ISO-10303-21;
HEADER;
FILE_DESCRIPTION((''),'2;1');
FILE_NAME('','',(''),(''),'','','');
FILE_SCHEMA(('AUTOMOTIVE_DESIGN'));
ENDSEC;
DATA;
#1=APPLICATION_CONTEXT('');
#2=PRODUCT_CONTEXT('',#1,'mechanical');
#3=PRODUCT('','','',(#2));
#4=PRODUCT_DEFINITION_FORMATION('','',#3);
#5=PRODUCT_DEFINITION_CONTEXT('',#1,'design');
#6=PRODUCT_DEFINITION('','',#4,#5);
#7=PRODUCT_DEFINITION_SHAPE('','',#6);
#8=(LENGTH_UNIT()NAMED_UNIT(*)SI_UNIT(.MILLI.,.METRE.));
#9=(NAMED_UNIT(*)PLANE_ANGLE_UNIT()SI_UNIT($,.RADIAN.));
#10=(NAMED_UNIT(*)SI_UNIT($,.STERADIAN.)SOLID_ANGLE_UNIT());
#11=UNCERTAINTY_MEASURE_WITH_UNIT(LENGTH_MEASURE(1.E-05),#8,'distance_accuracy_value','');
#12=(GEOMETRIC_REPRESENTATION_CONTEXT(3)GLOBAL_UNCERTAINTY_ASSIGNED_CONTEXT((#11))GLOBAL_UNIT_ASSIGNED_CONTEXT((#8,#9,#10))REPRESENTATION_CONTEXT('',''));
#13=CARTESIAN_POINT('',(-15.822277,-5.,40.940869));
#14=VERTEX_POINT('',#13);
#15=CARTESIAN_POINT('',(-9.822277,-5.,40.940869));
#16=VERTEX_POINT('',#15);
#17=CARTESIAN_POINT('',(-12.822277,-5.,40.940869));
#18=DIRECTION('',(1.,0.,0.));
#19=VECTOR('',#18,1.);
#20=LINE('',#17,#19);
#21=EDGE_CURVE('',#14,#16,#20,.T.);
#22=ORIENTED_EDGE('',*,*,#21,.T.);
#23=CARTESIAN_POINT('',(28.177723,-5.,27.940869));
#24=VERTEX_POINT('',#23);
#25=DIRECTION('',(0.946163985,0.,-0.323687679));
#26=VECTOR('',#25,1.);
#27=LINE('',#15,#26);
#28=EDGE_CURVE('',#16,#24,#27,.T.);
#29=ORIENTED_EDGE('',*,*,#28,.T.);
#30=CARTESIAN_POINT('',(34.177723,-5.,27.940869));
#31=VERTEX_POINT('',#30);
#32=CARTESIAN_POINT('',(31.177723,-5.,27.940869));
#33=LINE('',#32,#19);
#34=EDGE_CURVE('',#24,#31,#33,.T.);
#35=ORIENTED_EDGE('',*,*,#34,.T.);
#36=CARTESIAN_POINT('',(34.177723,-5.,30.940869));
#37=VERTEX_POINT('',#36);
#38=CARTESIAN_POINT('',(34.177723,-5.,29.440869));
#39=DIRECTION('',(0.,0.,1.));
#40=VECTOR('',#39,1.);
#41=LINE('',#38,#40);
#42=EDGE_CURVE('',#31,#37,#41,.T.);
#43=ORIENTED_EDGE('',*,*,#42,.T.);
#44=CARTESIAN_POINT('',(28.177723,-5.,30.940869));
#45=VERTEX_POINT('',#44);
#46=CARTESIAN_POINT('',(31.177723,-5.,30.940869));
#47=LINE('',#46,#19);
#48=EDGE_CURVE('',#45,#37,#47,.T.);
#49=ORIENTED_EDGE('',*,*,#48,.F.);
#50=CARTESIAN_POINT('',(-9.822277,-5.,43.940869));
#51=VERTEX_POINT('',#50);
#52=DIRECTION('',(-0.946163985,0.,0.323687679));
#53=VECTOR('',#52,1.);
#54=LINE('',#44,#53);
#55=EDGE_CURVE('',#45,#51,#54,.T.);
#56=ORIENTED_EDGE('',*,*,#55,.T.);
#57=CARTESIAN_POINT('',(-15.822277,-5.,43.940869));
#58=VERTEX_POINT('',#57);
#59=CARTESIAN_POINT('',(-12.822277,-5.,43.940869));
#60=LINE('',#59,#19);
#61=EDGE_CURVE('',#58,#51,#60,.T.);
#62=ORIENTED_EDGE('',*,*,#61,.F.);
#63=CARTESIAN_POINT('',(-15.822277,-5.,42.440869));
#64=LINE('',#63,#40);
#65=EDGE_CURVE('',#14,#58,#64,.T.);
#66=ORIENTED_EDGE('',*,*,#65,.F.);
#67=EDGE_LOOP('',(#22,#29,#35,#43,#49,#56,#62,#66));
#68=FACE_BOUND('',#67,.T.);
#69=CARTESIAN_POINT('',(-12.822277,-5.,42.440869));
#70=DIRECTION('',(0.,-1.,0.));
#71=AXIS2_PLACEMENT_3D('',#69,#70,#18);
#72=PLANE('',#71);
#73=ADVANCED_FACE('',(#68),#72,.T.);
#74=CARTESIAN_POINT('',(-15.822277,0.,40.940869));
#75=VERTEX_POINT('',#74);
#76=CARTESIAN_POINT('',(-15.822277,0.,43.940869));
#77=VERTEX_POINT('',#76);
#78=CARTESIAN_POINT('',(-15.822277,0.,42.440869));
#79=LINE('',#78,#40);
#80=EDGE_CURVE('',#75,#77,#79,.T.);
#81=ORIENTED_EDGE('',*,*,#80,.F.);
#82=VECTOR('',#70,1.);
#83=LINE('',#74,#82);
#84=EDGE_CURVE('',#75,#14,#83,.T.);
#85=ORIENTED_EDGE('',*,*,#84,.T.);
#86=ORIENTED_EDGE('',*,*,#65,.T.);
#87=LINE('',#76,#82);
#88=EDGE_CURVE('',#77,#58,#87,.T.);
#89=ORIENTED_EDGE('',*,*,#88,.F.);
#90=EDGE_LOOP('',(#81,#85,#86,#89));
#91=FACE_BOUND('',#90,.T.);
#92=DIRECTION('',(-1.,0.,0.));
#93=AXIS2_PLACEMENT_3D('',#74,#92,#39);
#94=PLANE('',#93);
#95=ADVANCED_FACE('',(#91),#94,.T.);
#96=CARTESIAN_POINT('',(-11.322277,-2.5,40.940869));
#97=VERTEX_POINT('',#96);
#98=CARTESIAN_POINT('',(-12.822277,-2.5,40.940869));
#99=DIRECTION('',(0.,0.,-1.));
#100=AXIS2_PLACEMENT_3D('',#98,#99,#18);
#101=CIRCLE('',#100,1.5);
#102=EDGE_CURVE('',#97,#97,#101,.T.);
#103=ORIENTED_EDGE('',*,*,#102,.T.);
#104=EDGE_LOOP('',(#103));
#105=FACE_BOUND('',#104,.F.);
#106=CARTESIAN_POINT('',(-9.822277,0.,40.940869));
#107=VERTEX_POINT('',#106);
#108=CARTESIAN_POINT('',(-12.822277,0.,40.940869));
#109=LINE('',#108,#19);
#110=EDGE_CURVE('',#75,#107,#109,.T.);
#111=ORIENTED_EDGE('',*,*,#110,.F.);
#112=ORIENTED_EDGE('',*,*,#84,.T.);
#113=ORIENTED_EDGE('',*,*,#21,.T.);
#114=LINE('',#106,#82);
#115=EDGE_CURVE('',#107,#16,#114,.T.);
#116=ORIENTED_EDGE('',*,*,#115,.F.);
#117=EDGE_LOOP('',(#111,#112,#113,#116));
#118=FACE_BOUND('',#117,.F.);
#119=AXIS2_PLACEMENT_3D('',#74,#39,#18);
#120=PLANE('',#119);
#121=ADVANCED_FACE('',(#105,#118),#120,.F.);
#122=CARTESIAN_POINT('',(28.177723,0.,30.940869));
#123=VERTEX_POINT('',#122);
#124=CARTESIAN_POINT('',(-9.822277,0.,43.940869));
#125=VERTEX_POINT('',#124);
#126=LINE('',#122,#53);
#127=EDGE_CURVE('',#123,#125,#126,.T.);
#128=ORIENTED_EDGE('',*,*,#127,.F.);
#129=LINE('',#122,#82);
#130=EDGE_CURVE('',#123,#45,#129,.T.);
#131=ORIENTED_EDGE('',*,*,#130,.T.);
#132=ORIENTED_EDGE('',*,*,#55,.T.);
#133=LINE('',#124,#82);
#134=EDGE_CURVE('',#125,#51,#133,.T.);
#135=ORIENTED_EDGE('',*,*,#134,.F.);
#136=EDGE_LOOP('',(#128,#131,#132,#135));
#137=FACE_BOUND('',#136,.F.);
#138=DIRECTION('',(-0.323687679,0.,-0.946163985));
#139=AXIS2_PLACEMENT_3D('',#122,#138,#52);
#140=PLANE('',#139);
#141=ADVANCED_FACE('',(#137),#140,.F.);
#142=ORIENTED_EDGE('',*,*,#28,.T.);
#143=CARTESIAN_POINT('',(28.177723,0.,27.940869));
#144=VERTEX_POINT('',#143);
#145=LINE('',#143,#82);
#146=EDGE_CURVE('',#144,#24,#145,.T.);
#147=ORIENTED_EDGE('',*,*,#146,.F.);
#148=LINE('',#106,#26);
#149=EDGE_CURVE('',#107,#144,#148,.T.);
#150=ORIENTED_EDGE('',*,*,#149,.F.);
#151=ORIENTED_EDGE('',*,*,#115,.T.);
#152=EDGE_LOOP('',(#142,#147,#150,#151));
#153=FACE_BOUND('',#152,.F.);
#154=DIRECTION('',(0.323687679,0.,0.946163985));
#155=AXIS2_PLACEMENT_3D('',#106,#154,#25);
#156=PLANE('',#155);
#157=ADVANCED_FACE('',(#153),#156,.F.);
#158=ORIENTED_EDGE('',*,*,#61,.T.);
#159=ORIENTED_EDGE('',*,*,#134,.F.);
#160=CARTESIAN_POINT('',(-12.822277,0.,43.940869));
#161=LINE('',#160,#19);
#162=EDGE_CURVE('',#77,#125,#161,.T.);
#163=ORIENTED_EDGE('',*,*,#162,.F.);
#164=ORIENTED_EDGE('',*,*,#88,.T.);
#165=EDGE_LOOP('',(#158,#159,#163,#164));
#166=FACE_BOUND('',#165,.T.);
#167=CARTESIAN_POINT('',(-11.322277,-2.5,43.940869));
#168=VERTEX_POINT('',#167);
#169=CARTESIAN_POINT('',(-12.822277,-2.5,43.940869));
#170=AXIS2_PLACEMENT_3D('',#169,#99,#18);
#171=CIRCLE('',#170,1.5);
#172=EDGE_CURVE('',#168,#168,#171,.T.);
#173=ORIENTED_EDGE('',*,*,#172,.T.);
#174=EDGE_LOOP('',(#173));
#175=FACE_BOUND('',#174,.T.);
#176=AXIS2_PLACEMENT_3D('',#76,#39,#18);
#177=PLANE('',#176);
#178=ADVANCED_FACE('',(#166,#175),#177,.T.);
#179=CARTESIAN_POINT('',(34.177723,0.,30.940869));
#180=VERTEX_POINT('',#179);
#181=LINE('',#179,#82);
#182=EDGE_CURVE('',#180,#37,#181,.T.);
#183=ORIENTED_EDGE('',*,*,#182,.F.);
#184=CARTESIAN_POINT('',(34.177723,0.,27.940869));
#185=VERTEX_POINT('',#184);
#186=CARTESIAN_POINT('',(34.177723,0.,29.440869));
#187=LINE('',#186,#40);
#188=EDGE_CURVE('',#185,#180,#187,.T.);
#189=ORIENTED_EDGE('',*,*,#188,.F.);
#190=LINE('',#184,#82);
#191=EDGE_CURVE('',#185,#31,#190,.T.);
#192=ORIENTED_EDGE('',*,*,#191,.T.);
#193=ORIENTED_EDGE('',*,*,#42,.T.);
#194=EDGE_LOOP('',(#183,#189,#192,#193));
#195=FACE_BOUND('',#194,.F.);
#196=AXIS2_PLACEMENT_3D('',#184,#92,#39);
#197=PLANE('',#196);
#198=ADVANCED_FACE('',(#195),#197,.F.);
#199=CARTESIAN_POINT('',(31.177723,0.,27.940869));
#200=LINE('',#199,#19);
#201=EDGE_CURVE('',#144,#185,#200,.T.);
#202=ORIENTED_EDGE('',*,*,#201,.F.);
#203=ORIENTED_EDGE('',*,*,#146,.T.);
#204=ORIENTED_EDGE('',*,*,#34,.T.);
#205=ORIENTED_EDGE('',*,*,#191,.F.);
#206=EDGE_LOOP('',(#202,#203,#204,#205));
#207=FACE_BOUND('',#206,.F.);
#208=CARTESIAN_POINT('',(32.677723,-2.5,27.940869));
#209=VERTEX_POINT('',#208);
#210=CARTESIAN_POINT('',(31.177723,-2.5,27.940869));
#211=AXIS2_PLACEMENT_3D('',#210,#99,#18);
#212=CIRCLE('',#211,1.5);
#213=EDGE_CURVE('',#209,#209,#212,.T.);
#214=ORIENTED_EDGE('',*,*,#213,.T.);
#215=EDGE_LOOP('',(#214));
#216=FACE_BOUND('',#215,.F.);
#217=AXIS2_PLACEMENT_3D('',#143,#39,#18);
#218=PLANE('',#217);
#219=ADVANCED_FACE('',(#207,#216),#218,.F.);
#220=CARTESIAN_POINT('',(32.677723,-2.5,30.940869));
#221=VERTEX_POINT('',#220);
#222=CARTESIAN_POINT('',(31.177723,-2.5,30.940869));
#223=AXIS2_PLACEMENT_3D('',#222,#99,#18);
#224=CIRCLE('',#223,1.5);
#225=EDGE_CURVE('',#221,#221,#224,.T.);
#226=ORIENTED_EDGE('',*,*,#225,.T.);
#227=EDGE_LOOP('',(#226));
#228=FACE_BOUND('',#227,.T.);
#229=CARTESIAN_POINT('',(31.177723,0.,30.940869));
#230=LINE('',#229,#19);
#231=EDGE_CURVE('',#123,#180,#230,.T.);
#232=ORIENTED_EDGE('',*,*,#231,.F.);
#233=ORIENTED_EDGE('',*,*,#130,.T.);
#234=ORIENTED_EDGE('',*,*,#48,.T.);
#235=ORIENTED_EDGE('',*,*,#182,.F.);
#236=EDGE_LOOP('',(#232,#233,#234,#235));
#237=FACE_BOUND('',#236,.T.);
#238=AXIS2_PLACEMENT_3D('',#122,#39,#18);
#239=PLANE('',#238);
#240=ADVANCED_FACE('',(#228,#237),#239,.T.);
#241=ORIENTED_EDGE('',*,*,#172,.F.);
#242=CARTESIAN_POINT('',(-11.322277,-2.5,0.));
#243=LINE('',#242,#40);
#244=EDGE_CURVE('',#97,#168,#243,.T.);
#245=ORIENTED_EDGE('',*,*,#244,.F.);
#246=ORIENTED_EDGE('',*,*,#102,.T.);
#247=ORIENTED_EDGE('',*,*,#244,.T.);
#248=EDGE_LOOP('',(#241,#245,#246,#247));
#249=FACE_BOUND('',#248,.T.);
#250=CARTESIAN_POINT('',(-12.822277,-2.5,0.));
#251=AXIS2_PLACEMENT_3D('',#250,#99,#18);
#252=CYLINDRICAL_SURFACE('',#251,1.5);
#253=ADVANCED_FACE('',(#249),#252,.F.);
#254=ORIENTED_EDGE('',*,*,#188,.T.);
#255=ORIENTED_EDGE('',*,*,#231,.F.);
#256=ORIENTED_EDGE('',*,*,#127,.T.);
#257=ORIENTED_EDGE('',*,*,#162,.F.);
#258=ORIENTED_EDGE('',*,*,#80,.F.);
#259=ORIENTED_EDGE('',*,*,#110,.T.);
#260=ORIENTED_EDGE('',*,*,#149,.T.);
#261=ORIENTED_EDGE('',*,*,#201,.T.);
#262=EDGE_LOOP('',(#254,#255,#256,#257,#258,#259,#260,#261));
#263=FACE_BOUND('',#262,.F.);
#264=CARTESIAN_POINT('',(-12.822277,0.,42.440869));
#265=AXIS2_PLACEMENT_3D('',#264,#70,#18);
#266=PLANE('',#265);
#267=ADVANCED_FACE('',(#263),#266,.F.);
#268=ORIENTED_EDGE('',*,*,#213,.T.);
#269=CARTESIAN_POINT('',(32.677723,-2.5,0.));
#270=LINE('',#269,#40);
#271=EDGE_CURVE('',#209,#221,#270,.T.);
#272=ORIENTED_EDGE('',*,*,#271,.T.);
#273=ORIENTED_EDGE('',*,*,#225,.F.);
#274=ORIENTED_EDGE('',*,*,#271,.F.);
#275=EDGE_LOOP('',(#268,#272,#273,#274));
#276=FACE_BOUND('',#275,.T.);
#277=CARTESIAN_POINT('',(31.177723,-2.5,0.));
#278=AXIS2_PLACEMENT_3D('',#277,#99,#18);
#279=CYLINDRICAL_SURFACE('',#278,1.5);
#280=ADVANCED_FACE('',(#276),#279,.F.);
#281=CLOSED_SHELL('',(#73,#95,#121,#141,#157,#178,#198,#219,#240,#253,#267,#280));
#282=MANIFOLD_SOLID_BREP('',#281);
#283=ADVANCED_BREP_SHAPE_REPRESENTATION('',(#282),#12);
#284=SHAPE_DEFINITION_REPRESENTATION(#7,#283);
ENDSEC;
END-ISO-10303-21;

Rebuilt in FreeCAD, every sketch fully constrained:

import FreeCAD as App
import Part
import Sketcher

V = App.Vector
Q = App.Units.Quantity

doc = App.newDocument("Part")
body = doc.addObject("PartDesign::Body", "Body")

sketch1 = body.newObject("Sketcher::SketchObject", "Sketch")
sketch1.AttachmentSupport = (doc.getObject("XZ_Plane"), [""])
sketch1.MapMode = "FlatFace"
sketch1.addGeometry(Part.LineSegment(V(-15.8, 43.9, 0), V(-15.8, 40.9, 0)), False)
sketch1.addGeometry(Part.LineSegment(V(-15.8, 40.9, 0), V(-9.8, 40.9, 0)), False)
sketch1.addGeometry(Part.LineSegment(V(-9.8, 40.9, 0), V(28.2, 27.9, 0)), False)
sketch1.addGeometry(Part.LineSegment(V(28.2, 27.9, 0), V(34.2, 27.9, 0)), False)
sketch1.addGeometry(Part.LineSegment(V(34.2, 27.9, 0), V(34.2, 30.9, 0)), False)
sketch1.addGeometry(Part.LineSegment(V(34.2, 30.9, 0), V(28.2, 30.9, 0)), False)
sketch1.addGeometry(Part.LineSegment(V(28.2, 30.9, 0), V(-9.8, 43.9, 0)), False)
sketch1.addGeometry(Part.LineSegment(V(-9.8, 43.9, 0), V(-15.8, 43.9, 0)), False)
sketch1.addConstraint(Sketcher.Constraint("Coincident", 0, 2, 1, 1))
sketch1.addConstraint(Sketcher.Constraint("Coincident", 1, 2, 2, 1))
sketch1.addConstraint(Sketcher.Constraint("Coincident", 2, 2, 3, 1))
sketch1.addConstraint(Sketcher.Constraint("Coincident", 3, 2, 4, 1))
sketch1.addConstraint(Sketcher.Constraint("Coincident", 4, 2, 5, 1))
sketch1.addConstraint(Sketcher.Constraint("Coincident", 5, 2, 6, 1))
sketch1.addConstraint(Sketcher.Constraint("Coincident", 6, 2, 7, 1))
sketch1.addConstraint(Sketcher.Constraint("Coincident", 7, 2, 0, 1))
sketch1.addConstraint(Sketcher.Constraint("Vertical", 0))
sketch1.addConstraint(Sketcher.Constraint("Horizontal", 1))
sketch1.addConstraint(Sketcher.Constraint("Horizontal", 3))
sketch1.addConstraint(Sketcher.Constraint("Vertical", 4))
sketch1.addConstraint(Sketcher.Constraint("Horizontal", 5))
sketch1.addConstraint(Sketcher.Constraint("Horizontal", 7))
sketch1.addConstraint(Sketcher.Constraint("Parallel", 2, 6))
sketch1.addConstraint(Sketcher.Constraint("Vertical", 2, 2, 5, 2))
sketch1.addConstraint(Sketcher.Constraint("Vertical", 1, 2, 6, 2))
sketch1.addConstraint(Sketcher.Constraint("Equal", 1, 3))
sketch1.addConstraint(Sketcher.Constraint("DistanceX", 1, 1, 1, 2, Q("6 mm")))
sketch1.addConstraint(Sketcher.Constraint("DistanceY", 0, 2, 0, 1, Q("3 mm")))
sketch1.addConstraint(Sketcher.Constraint("DistanceX", 1, 2, 2, 2, Q("38 mm")))
sketch1.addConstraint(Sketcher.Constraint("DistanceY", 2, 2, 1, 2, Q("13 mm")))
sketch1.addConstraint(Sketcher.Constraint("DistanceY", -1, 1, 0, 2, Q("40.940869 mm")))
sketch1.addConstraint(Sketcher.Constraint("DistanceX", 0, 2, -1, 1, Q("15.822277 mm")))
pad1 = body.newObject("PartDesign::Pad", "Pad")
pad1.Profile = sketch1
pad1.Length = 5

sketch2 = body.newObject("Sketcher::SketchObject", "Sketch001")
sketch2.AttachmentSupport = (doc.getObject("XY_Plane"), [""])
sketch2.MapMode = "FlatFace"
sketch2.addGeometry(Part.Circle(V(-12.8, -2.5, 0), V(0, 0, 1), 1.5), False)
sketch2.addConstraint(Sketcher.Constraint("Diameter", 0, Q("3 mm")))
sketch2.addConstraint(Sketcher.Constraint("DistanceY", 0, 3, -1, 1, Q("2.5 mm")))
sketch2.addConstraint(Sketcher.Constraint("DistanceX", 0, 3, -1, 1, Q("12.822277 mm")))
pocket1 = body.newObject("PartDesign::Pocket", "Pocket")
pocket1.Profile = sketch2
pocket1.Length = 100
pocket1.Reversed = True

sketch3 = body.newObject("Sketcher::SketchObject", "Sketch002")
sketch3.AttachmentSupport = (doc.getObject("XY_Plane"), [""])
sketch3.MapMode = "FlatFace"
sketch3.addGeometry(Part.Circle(V(-12.8, -2.5, 0), V(0, 0, 1), 1.5), False)
sketch3.addGeometry(Part.Circle(V(31.2, -2.5, 0), V(0, 0, 1), 1.5), False)
sketch3.addConstraint(Sketcher.Constraint("Equal", 0, 1))
sketch3.addConstraint(Sketcher.Constraint("Horizontal", 0, 3, 1, 3))
sketch3.addConstraint(Sketcher.Constraint("Diameter", 0, Q("3 mm")))
sketch3.addConstraint(Sketcher.Constraint("DistanceX", 0, 3, 1, 3, Q("44 mm")))
sketch3.addConstraint(Sketcher.Constraint("DistanceY", 0, 3, -1, 1, Q("2.5 mm")))
sketch3.addConstraint(Sketcher.Constraint("DistanceX", 0, 3, -1, 1, Q("12.822277 mm")))
pocket2 = body.newObject("PartDesign::Pocket", "Pocket001")
pocket2.Profile = sketch3
pocket2.Length = 100
pocket2.Reversed = True

doc.recompute()
